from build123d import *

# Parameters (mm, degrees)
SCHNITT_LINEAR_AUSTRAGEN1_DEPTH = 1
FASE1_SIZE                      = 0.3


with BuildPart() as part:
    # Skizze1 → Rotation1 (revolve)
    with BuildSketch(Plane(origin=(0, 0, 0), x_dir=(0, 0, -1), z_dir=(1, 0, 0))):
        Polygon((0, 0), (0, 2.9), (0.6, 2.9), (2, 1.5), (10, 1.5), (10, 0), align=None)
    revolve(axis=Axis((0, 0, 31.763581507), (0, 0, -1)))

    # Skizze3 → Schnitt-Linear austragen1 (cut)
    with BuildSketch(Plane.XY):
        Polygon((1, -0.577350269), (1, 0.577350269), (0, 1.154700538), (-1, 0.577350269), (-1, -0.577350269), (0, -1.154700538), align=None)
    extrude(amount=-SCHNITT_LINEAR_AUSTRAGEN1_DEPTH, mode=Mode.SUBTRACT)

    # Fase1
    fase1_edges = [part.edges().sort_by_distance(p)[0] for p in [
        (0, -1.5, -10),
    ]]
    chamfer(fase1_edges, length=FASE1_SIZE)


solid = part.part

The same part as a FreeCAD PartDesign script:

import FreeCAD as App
import Part
import Sketcher
Q = App.Units.Quantity


def edges_at(feature, points):
    """Names of the edges that pass closest to the given points."""
    edges = feature.Shape.Edges
    near = lambda p: min(range(len(edges)), key=lambda i: edges[i].distToShape(Part.Vertex(*p))[0])
    return sorted({f"Edge{near(p) + 1}" for p in points})


def add_polygon(sketch, points):
    """Adds a closed chain of lines whose ends are joined by coincident constraints."""
    first, n = sketch.GeometryCount, len(points)
    for a, b in zip(points, points[1:] + points[:1]):
        sketch.addGeometry(Part.LineSegment(App.Vector(*a, 0), App.Vector(*b, 0)), False)
    for i in range(n):
        sketch.addConstraint(Sketcher.Constraint("Coincident", first + i, 2, first + (i + 1) % n, 1))

doc = App.newDocument("Part")
body = doc.addObject("PartDesign::Body", "Body")

sketch1 = body.newObject("Sketcher::SketchObject", "Sketch")
sketch1.AttachmentSupport = (doc.getObject("YZ_Plane"), [""])
sketch1.MapMode = "FlatFace"
add_polygon(sketch1, [(2.9, 0), (0, 0), (0, -10), (1.5, -10), (1.5, -2), (2.9, -0.6)])
sketch1.addConstraint(Sketcher.Constraint("Horizontal", 0))
sketch1.addConstraint(Sketcher.Constraint("Vertical", 1))
sketch1.addConstraint(Sketcher.Constraint("Horizontal", 2))
sketch1.addConstraint(Sketcher.Constraint("Vertical", 3))
sketch1.addConstraint(Sketcher.Constraint("Vertical", 5))
sketch1.addConstraint(Sketcher.Constraint("Coincident", 0, 2, -1, 1))
sketch1.addConstraint(Sketcher.Constraint("DistanceY", 1, 2, 1, 1, Q("10 mm")))
sketch1.addConstraint(Sketcher.Constraint("DistanceY", 3, 1, 3, 2, Q("8 mm")))
sketch1.addConstraint(Sketcher.Constraint("Angle", 4, Q("45 deg")))
sketch1.addConstraint(Sketcher.Constraint("DistanceX", 0, 2, 0, 1, Q("2.9 mm")))
sketch1.addConstraint(Sketcher.Constraint("DistanceX", 2, 1, 2, 2, Q("1.5 mm")))
revolution = body.newObject("PartDesign::Revolution", "Revolution")
revolution.Profile = sketch1
revolution.ReferenceAxis = (sketch1, ["V_Axis"])
revolution.Angle = 360

sketch2 = body.newObject("Sketcher::SketchObject", "Sketch001")
sketch2.AttachmentSupport = (doc.getObject("XY_Plane"), [""])
sketch2.MapMode = "FlatFace"
add_polygon(sketch2, [(1, -0.6), (1, 0.6), (0, 1.2), (-1, 0.6), (-1, -0.6), (0, -1.2)])
sketch2.addConstraint(Sketcher.Constraint("Vertical", 0))
sketch2.addConstraint(Sketcher.Constraint("Vertical", 3))
sketch2.addConstraint(Sketcher.Constraint("Symmetric", 0, 2, 3, 2, -1, 1))
sketch2.addConstraint(Sketcher.Constraint("Symmetric", 1, 2, 4, 2, -1, 1))
sketch2.addConstraint(Sketcher.Constraint("PointOnObject", 1, 2, -2))
sketch2.addConstraint(Sketcher.Constraint("Parallel", 2, 5))
sketch2.addConstraint(Sketcher.Constraint("Horizontal", 0, 2, 2, 2))
sketch2.addConstraint(Sketcher.Constraint("Angle", 1, Q("150 deg")))
sketch2.addConstraint(Sketcher.Constraint("DistanceX", -1, 1, 0, 2, Q("1 mm")))
sketch2.addConstraint(Sketcher.Constraint("DistanceY", 0, 1, 0, 2, Q("1.154701 mm")))
pocket1 = body.newObject("PartDesign::Pocket", "Pocket")
pocket1.Profile = sketch2
pocket1.Length = 1
doc.recompute()

chamfer = body.newObject("PartDesign::Chamfer", "Chamfer")
chamfer.Base = (pocket1, edges_at(pocket1, [(0, -1.5, -10)]))
chamfer.Size = 0.3

doc.recompute()
